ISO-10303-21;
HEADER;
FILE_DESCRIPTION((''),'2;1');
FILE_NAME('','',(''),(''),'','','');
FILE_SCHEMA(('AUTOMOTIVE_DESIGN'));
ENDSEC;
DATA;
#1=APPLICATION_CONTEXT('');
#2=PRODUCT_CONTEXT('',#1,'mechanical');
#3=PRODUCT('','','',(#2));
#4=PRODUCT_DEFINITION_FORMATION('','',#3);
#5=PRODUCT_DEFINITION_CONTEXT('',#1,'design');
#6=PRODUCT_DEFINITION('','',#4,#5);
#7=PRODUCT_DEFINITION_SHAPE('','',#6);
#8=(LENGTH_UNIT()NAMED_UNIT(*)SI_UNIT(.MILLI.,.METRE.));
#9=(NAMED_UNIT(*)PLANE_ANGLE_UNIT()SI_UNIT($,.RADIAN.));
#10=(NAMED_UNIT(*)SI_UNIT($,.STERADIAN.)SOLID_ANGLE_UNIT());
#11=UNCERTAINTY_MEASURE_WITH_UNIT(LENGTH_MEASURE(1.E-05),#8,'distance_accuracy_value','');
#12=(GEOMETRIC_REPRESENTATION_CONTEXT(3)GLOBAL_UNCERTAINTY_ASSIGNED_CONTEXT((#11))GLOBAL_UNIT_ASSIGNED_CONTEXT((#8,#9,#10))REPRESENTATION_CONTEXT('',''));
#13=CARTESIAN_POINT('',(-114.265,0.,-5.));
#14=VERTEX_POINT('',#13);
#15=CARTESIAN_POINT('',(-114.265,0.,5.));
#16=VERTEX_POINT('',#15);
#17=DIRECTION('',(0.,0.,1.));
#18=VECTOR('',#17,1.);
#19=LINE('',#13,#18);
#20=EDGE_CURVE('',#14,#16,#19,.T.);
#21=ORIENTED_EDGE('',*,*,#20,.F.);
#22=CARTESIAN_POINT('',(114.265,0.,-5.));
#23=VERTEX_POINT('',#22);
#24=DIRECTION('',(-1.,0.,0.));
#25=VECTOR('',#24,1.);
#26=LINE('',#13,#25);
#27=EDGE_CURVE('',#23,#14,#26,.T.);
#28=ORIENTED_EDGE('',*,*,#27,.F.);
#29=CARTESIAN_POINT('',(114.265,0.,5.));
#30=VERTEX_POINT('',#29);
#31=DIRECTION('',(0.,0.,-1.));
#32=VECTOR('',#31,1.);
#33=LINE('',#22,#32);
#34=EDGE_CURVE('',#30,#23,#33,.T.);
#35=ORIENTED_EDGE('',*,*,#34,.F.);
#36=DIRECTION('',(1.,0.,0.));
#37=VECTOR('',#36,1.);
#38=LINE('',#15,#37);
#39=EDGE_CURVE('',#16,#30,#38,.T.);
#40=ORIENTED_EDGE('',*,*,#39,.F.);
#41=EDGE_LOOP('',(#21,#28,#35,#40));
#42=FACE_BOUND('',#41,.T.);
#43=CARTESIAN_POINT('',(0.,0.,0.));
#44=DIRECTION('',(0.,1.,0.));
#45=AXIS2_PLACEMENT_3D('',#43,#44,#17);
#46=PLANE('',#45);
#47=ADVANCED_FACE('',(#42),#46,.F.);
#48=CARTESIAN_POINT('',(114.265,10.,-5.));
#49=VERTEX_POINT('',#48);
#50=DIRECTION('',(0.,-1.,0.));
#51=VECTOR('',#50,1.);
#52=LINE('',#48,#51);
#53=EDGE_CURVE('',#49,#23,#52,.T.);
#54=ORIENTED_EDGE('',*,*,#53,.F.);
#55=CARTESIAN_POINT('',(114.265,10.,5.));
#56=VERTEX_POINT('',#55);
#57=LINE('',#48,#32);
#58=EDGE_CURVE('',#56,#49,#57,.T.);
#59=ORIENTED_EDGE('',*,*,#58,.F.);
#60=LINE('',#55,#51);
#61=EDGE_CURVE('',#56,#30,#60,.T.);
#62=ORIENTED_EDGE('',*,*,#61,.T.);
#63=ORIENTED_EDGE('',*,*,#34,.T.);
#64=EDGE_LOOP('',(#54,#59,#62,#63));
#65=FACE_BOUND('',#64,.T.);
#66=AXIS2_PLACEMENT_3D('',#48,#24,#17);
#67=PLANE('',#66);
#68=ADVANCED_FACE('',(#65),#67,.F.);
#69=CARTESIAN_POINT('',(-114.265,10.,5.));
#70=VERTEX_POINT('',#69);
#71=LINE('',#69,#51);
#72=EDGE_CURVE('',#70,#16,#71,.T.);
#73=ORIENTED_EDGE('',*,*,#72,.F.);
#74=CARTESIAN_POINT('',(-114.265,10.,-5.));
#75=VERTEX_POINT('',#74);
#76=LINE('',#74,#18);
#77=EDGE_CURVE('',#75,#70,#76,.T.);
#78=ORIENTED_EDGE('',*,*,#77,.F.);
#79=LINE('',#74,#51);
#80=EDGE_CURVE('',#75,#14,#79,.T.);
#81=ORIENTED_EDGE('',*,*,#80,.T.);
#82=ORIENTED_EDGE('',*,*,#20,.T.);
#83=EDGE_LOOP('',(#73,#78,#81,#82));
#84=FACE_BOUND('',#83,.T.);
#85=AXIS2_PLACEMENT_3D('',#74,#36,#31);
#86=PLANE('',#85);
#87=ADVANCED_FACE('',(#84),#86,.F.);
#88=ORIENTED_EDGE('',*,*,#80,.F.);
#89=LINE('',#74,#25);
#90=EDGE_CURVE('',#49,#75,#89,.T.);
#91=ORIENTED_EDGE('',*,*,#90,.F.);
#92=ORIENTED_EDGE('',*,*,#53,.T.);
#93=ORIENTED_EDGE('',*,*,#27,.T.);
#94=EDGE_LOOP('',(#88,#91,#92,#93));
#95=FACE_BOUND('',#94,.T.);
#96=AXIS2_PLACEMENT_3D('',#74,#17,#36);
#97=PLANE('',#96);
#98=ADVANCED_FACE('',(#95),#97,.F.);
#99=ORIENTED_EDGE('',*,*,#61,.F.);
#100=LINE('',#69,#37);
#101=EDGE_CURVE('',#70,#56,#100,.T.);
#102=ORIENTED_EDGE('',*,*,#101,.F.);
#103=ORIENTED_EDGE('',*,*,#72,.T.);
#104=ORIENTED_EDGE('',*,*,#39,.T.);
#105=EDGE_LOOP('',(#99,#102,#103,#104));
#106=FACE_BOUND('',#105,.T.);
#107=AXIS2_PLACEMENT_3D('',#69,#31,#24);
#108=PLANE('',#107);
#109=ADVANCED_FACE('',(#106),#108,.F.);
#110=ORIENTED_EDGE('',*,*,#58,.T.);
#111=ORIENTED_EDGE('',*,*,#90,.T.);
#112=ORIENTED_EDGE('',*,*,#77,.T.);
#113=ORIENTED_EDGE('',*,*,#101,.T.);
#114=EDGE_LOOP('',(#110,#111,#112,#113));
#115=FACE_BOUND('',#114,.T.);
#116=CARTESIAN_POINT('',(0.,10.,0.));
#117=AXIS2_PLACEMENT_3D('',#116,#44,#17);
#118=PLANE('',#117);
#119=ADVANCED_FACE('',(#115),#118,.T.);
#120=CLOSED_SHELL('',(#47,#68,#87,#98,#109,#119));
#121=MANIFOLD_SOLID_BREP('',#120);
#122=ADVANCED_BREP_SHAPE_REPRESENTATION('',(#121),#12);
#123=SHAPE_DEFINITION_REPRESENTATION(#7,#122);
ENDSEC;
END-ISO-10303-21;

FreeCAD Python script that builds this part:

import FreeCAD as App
import Part
import Sketcher

V = App.Vector

doc = App.newDocument("Part")
params = doc.addObject("Spreadsheet::Sheet", "Params")
for row, (alias, value) in enumerate([
    ("sketch1_height", "10 mm"),
    ("sketch1_width", "228.53 mm"),
    ("pad1_length", "10 mm"),
], start=1):
    params.set(f"A{row}", alias)
    params.set(f"B{row}", "=" + value)
    params.setAlias(f"B{row}", alias)

body = doc.addObject("PartDesign::Body", "Body")

sketch1 = body.newObject("Sketcher::SketchObject", "Sketch")
sketch1.AttachmentSupport = (doc.getObject("XZ_Plane"), [""])
sketch1.MapMode = "FlatFace"
sketch1.addGeometry(Part.LineSegment(V(-114.265, -5, 0), V(-114.265, 5, 0)), False)
sketch1.addGeometry(Part.LineSegment(V(-114.265, 5, 0), V(114.265, 5, 0)), False)
sketch1.addGeometry(Part.LineSegment(V(114.265, 5, 0), V(114.265, -5, 0)), False)
sketch1.addGeometry(Part.LineSegment(V(114.265, -5, 0), V(-114.265, -5, 0)), False)
sketch1.addConstraint(Sketcher.Constraint("Coincident", 0, 2, 1, 1))
sketch1.addConstraint(Sketcher.Constraint("Coincident", 1, 2, 2, 1))
sketch1.addConstraint(Sketcher.Constraint("Coincident", 2, 2, 3, 1))
sketch1.addConstraint(Sketcher.Constraint("Coincident", 3, 2, 0, 1))
sketch1.addConstraint(Sketcher.Constraint("Vertical", 0))
sketch1.addConstraint(Sketcher.Constraint("Horizontal", 1))
sketch1.addConstraint(Sketcher.Constraint("Vertical", 2))
sketch1.addConstraint(Sketcher.Constraint("Horizontal", 3))
sketch1.addConstraint(Sketcher.Constraint("Symmetric", 0, 2, 2, 2, -1, 1))
sketch1.addConstraint(Sketcher.Constraint("DistanceY", 0, 1, 0, 2, 10.0))
sketch1.addConstraint(Sketcher.Constraint("DistanceX", 1, 1, 1, 2, 228.53))
sketch1.setExpression("Constraints[9]", "Params.sketch1_height")
sketch1.setExpression("Constraints[10]", "Params.sketch1_width")
pad1 = body.newObject("PartDesign::Pad", "Pad")
pad1.Profile = sketch1
pad1.setExpression("Length", "Params.pad1_length")
pad1.Reversed = True

doc.recompute()
